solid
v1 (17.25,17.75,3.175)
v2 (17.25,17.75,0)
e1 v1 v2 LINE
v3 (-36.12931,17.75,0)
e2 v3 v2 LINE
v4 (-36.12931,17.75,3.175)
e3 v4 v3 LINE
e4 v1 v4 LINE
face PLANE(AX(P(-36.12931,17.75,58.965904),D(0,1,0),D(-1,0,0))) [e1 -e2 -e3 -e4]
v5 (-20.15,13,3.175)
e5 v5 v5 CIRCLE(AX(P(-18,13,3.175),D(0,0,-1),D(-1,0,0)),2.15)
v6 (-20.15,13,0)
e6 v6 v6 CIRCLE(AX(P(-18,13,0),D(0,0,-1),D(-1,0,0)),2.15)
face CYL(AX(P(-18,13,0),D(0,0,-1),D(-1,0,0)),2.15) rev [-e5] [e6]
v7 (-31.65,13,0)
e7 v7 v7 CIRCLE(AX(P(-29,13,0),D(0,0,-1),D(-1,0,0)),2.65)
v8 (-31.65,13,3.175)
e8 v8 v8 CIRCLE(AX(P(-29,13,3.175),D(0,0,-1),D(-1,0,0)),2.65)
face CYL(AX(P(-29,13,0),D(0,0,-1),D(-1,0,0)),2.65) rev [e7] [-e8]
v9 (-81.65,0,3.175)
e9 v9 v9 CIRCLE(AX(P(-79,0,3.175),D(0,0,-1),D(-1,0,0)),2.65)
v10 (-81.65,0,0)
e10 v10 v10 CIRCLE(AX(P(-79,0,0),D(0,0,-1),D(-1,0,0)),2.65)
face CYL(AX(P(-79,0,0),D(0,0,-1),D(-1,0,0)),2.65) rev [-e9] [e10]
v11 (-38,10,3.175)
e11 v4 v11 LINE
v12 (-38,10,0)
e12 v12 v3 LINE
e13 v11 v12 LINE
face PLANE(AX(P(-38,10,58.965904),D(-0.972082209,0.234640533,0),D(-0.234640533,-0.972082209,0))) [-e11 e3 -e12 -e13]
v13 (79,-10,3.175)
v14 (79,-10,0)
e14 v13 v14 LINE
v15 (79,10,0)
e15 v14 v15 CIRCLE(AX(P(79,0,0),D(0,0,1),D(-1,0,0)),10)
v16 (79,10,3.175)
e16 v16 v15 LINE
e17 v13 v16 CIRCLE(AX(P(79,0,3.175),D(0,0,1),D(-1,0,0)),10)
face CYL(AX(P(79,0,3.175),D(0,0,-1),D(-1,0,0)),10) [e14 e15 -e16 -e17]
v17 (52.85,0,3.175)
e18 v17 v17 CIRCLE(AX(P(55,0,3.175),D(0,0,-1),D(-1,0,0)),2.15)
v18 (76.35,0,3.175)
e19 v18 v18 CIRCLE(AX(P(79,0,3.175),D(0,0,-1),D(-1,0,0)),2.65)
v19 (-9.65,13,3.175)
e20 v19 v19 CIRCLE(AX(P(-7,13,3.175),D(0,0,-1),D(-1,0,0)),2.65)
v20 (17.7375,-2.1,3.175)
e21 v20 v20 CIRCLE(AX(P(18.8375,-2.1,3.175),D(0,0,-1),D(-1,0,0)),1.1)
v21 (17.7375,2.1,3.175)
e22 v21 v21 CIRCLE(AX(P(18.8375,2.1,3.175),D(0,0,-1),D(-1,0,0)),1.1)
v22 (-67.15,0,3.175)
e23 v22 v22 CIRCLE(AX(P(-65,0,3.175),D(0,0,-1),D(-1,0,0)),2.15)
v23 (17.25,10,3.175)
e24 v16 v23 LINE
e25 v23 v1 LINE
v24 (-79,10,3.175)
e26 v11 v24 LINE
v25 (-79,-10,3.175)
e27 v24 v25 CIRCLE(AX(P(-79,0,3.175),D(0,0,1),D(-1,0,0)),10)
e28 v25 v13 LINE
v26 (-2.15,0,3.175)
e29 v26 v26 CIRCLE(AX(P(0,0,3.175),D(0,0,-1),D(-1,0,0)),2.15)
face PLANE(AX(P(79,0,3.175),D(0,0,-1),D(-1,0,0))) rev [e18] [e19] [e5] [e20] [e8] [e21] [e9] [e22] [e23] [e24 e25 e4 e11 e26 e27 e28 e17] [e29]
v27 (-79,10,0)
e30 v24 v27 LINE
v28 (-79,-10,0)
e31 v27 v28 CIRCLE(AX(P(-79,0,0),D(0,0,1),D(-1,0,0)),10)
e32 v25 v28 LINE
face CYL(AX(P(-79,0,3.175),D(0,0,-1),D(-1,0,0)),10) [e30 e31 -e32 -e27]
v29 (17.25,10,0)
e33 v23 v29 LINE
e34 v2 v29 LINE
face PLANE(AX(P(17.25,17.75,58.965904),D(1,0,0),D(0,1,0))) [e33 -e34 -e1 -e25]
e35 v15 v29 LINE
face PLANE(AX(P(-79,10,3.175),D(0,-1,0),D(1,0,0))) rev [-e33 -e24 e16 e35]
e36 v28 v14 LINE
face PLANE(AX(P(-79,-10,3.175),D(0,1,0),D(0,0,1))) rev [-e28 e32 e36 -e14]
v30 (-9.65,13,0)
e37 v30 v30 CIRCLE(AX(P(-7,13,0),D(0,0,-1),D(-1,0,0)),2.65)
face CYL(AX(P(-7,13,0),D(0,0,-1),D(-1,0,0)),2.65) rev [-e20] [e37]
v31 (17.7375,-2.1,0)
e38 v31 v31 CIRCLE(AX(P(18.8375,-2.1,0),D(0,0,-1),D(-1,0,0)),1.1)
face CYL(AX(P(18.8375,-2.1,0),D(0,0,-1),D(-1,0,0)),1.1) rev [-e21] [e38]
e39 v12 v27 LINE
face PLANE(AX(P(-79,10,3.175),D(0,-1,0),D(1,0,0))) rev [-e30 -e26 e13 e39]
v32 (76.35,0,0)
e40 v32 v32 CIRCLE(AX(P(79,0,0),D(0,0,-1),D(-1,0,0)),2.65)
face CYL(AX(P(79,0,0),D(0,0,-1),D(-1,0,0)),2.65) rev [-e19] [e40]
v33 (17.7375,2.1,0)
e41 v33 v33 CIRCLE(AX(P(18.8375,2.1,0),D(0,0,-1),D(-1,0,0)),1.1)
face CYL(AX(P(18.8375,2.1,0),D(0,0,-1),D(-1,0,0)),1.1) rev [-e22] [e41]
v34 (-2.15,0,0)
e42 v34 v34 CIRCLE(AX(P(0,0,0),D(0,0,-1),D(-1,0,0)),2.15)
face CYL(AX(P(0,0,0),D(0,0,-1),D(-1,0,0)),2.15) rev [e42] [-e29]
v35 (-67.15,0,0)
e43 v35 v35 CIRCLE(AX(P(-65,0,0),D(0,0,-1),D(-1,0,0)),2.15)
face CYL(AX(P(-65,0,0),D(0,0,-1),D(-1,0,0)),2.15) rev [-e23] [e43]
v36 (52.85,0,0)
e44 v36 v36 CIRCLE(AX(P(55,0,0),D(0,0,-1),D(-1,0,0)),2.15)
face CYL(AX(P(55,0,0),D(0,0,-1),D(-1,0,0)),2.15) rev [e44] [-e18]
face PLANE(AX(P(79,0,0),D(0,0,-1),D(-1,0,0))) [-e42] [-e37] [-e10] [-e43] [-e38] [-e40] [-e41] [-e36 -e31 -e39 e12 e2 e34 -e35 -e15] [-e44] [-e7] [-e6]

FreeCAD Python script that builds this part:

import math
import FreeCAD as App
import Part
import Sketcher

V = App.Vector


def add_polygon(sketch, points):
    """Adds a closed chain of lines whose ends are joined by coincident constraints."""
    first, n = sketch.GeometryCount, len(points)
    for a, b in zip(points, points[1:] + points[:1]):
        sketch.addGeometry(Part.LineSegment(App.Vector(*a, 0), App.Vector(*b, 0)), False)
    for i in range(n):
        sketch.addConstraint(Sketcher.Constraint("Coincident", first + i, 2, first + (i + 1) % n, 1))

doc = App.newDocument("Part")
body = doc.addObject("PartDesign::Body", "Body")

sketch1 = body.newObject("Sketcher::SketchObject", "Sketch")
sketch1.AttachmentSupport = (doc.getObject("XY_Plane"), [""])
sketch1.MapMode = "FlatFace"
sketch1.addGeometry([
    Part.LineSegment(V(79, 10, 0), V(-79, 10, 0)),
    Part.ArcOfCircle(Part.Circle(V(-79, 0, 0), V(0, 0, 1), 10), math.radians(90), math.radians(270)),
    Part.LineSegment(V(-79, -10, 0), V(79, -10, 0)),
    Part.ArcOfCircle(Part.Circle(V(79, 0, 0), V(0, 0, 1), 10), math.radians(-90), math.radians(90)),
], False)
sketch1.addConstraint([
    Sketcher.Constraint("Tangent", 0, 2, 1, 1),
    Sketcher.Constraint("Tangent", 1, 2, 2, 1),
    Sketcher.Constraint("Tangent", 2, 2, 3, 1),
    Sketcher.Constraint("Tangent", 3, 2, 0, 1),
    Sketcher.Constraint("Horizontal", 0),
    Sketcher.Constraint("Horizontal", 2),
    Sketcher.Constraint("Symmetric", 1, 3, 3, 3, -1, 1),
    Sketcher.Constraint("Radius", 1, 10.0),
    Sketcher.Constraint("DistanceX", 0, 2, 0, 1, 158.0),
])
pad1 = body.newObject("PartDesign::Pad", "Pad")
pad1.Profile = sketch1
pad1.Length = 3.175

sketch2 = body.newObject("Sketcher::SketchObject", "Sketch001")
sketch2.AttachmentSupport = (doc.getObject("XY_Plane"), [""])
sketch2.MapMode = "FlatFace"
sketch2.addGeometry([
    Part.Circle(V(79, 0, 0), V(0, 0, 1), 2.65),
    Part.Circle(V(-79, 0, 0), V(0, 0, 1), 2.65),
], False)
sketch2.addConstraint([
    Sketcher.Constraint("Equal", 0, 1),
    Sketcher.Constraint("Symmetric", 0, 3, 1, 3, -1, 1),
    Sketcher.Constraint("PointOnObject", 0, 3, -1),
    Sketcher.Constraint("Diameter", 0, 5.3),
    Sketcher.Constraint("DistanceX", -1, 1, 0, 3, 79.0),
])
doc.recompute()
hole = body.newObject("PartDesign::Hole", "Hole")
hole.Profile = sketch2
hole.ThreadType = "None"
hole.Diameter = 5.3
hole.DepthType = "ThroughAll"
hole.Reversed = True

sketch3 = body.newObject("Sketcher::SketchObject", "Sketch002")
sketch3.AttachmentSupport = (doc.getObject("XY_Plane"), [""])
sketch3.MapMode = "FlatFace"
add_polygon(sketch3, [(-38, 10), (-36.12931, 17.75), (17.25, 17.75), (17.25, 10)])
sketch3.addConstraint([
    Sketcher.Constraint("Horizontal", 1),
    Sketcher.Constraint("Vertical", 2),
    Sketcher.Constraint("Horizontal", 3),
    Sketcher.Constraint("DistanceY", -1, 1, 2, 2, 10.0),
    Sketcher.Constraint("DistanceX", 3, 2, -1, 1, 38.0),
    Sketcher.Constraint("DistanceX", 3, 2, 3, 1, 55.25),
    Sketcher.Constraint("DistanceY", 2, 2, 2, 1, 7.75),
    Sketcher.Constraint("DistanceX", 1, 1, 1, 2, 53.37931),
])
pad2 = body.newObject("PartDesign::Pad", "Pad001")
pad2.Profile = sketch3
pad2.Length = 3.175

sketch4 = body.newObject("Sketcher::SketchObject", "Sketch003")
sketch4.AttachmentSupport = (doc.getObject("XY_Plane"), [""])
sketch4.MapMode = "FlatFace"
sketch4.addGeometry([
    Part.Circle(V(-7, 13, 0), V(0, 0, 1), 2.65),
    Part.Circle(V(-29, 13, 0), V(0, 0, 1), 2.65),
], False)
sketch4.addConstraint([
    Sketcher.Constraint("Equal", 0, 1),
    Sketcher.Constraint("Horizontal", 0, 3, 1, 3),
    Sketcher.Constraint("Diameter", 0, 5.3),
    Sketcher.Constraint("DistanceX", 0, 3, -1, 1, 7.0),
    Sketcher.Constraint("DistanceY", -1, 1, 0, 3, 13.0),
    Sketcher.Constraint("DistanceX", 1, 3, -1, 1, 29.0),
])
doc.recompute()
hole2 = body.newObject("PartDesign::Hole", "Hole001")
hole2.Profile = sketch4
hole2.ThreadType = "None"
hole2.Diameter = 5.3
hole2.DepthType = "ThroughAll"
hole2.Reversed = True

sketch5 = body.newObject("Sketcher::SketchObject", "Sketch004")
sketch5.AttachmentSupport = (doc.getObject("XY_Plane"), [""])
sketch5.MapMode = "FlatFace"
sketch5.addGeometry([
    Part.Circle(V(0, 0, 0), V(0, 0, 1), 2.15),
    Part.Circle(V(55, 0, 0), V(0, 0, 1), 2.15),
    Part.Circle(V(-18, 13, 0), V(0, 0, 1), 2.15),
    Part.Circle(V(-65, 0, 0), V(0, 0, 1), 2.15),
], False)
sketch5.addConstraint([
    Sketcher.Constraint("Coincident", 0, 3, -1, 1),
    Sketcher.Constraint("Equal", 0, 1),
    Sketcher.Constraint("Equal", 1, 2),
    Sketcher.Constraint("Equal", 2, 3),
    Sketcher.Constraint("PointOnObject", 1, 3, -1),
    Sketcher.Constraint("PointOnObject", 3, 3, -1),
    Sketcher.Constraint("Diameter", 0, 4.3),
    Sketcher.Constraint("DistanceX", -1, 1, 1, 3, 55.0),
    Sketcher.Constraint("DistanceX", 2, 3, -1, 1, 18.0),
    Sketcher.Constraint("DistanceY", -1, 1, 2, 3, 13.0),
    Sketcher.Constraint("DistanceX", 3, 3, -1, 1, 65.0),
])
doc.recompute()
hole3 = body.newObject("PartDesign::Hole", "Hole002")
hole3.Profile = sketch5
hole3.ThreadType = "None"
hole3.Diameter = 4.3
hole3.DepthType = "ThroughAll"
hole3.Reversed = True

sketch6 = body.newObject("Sketcher::SketchObject", "Sketch005")
sketch6.AttachmentSupport = (doc.getObject("XY_Plane"), [""])
sketch6.MapMode = "FlatFace"
sketch6.addGeometry([
    Part.Circle(V(18.8375, -2.1, 0), V(0, 0, 1), 1.1),
    Part.Circle(V(18.8375, 2.1, 0), V(0, 0, 1), 1.1),
], False)
sketch6.addConstraint([
    Sketcher.Constraint("Equal", 0, 1),
    Sketcher.Constraint("Symmetric", 0, 3, 1, 3, -1),
    Sketcher.Constraint("Diameter", 0, 2.2),
    Sketcher.Constraint("DistanceY", 0, 3, -1, 1, 2.1),
    Sketcher.Constraint("DistanceX", -1, 1, 0, 3, 18.8375),
])
doc.recompute()
hole4 = body.newObject("PartDesign::Hole", "Hole003")
hole4.Profile = sketch6
hole4.ThreadType = "None"
hole4.Diameter = 2.2
hole4.DepthType = "ThroughAll"
hole4.Reversed = True

doc.recompute()
